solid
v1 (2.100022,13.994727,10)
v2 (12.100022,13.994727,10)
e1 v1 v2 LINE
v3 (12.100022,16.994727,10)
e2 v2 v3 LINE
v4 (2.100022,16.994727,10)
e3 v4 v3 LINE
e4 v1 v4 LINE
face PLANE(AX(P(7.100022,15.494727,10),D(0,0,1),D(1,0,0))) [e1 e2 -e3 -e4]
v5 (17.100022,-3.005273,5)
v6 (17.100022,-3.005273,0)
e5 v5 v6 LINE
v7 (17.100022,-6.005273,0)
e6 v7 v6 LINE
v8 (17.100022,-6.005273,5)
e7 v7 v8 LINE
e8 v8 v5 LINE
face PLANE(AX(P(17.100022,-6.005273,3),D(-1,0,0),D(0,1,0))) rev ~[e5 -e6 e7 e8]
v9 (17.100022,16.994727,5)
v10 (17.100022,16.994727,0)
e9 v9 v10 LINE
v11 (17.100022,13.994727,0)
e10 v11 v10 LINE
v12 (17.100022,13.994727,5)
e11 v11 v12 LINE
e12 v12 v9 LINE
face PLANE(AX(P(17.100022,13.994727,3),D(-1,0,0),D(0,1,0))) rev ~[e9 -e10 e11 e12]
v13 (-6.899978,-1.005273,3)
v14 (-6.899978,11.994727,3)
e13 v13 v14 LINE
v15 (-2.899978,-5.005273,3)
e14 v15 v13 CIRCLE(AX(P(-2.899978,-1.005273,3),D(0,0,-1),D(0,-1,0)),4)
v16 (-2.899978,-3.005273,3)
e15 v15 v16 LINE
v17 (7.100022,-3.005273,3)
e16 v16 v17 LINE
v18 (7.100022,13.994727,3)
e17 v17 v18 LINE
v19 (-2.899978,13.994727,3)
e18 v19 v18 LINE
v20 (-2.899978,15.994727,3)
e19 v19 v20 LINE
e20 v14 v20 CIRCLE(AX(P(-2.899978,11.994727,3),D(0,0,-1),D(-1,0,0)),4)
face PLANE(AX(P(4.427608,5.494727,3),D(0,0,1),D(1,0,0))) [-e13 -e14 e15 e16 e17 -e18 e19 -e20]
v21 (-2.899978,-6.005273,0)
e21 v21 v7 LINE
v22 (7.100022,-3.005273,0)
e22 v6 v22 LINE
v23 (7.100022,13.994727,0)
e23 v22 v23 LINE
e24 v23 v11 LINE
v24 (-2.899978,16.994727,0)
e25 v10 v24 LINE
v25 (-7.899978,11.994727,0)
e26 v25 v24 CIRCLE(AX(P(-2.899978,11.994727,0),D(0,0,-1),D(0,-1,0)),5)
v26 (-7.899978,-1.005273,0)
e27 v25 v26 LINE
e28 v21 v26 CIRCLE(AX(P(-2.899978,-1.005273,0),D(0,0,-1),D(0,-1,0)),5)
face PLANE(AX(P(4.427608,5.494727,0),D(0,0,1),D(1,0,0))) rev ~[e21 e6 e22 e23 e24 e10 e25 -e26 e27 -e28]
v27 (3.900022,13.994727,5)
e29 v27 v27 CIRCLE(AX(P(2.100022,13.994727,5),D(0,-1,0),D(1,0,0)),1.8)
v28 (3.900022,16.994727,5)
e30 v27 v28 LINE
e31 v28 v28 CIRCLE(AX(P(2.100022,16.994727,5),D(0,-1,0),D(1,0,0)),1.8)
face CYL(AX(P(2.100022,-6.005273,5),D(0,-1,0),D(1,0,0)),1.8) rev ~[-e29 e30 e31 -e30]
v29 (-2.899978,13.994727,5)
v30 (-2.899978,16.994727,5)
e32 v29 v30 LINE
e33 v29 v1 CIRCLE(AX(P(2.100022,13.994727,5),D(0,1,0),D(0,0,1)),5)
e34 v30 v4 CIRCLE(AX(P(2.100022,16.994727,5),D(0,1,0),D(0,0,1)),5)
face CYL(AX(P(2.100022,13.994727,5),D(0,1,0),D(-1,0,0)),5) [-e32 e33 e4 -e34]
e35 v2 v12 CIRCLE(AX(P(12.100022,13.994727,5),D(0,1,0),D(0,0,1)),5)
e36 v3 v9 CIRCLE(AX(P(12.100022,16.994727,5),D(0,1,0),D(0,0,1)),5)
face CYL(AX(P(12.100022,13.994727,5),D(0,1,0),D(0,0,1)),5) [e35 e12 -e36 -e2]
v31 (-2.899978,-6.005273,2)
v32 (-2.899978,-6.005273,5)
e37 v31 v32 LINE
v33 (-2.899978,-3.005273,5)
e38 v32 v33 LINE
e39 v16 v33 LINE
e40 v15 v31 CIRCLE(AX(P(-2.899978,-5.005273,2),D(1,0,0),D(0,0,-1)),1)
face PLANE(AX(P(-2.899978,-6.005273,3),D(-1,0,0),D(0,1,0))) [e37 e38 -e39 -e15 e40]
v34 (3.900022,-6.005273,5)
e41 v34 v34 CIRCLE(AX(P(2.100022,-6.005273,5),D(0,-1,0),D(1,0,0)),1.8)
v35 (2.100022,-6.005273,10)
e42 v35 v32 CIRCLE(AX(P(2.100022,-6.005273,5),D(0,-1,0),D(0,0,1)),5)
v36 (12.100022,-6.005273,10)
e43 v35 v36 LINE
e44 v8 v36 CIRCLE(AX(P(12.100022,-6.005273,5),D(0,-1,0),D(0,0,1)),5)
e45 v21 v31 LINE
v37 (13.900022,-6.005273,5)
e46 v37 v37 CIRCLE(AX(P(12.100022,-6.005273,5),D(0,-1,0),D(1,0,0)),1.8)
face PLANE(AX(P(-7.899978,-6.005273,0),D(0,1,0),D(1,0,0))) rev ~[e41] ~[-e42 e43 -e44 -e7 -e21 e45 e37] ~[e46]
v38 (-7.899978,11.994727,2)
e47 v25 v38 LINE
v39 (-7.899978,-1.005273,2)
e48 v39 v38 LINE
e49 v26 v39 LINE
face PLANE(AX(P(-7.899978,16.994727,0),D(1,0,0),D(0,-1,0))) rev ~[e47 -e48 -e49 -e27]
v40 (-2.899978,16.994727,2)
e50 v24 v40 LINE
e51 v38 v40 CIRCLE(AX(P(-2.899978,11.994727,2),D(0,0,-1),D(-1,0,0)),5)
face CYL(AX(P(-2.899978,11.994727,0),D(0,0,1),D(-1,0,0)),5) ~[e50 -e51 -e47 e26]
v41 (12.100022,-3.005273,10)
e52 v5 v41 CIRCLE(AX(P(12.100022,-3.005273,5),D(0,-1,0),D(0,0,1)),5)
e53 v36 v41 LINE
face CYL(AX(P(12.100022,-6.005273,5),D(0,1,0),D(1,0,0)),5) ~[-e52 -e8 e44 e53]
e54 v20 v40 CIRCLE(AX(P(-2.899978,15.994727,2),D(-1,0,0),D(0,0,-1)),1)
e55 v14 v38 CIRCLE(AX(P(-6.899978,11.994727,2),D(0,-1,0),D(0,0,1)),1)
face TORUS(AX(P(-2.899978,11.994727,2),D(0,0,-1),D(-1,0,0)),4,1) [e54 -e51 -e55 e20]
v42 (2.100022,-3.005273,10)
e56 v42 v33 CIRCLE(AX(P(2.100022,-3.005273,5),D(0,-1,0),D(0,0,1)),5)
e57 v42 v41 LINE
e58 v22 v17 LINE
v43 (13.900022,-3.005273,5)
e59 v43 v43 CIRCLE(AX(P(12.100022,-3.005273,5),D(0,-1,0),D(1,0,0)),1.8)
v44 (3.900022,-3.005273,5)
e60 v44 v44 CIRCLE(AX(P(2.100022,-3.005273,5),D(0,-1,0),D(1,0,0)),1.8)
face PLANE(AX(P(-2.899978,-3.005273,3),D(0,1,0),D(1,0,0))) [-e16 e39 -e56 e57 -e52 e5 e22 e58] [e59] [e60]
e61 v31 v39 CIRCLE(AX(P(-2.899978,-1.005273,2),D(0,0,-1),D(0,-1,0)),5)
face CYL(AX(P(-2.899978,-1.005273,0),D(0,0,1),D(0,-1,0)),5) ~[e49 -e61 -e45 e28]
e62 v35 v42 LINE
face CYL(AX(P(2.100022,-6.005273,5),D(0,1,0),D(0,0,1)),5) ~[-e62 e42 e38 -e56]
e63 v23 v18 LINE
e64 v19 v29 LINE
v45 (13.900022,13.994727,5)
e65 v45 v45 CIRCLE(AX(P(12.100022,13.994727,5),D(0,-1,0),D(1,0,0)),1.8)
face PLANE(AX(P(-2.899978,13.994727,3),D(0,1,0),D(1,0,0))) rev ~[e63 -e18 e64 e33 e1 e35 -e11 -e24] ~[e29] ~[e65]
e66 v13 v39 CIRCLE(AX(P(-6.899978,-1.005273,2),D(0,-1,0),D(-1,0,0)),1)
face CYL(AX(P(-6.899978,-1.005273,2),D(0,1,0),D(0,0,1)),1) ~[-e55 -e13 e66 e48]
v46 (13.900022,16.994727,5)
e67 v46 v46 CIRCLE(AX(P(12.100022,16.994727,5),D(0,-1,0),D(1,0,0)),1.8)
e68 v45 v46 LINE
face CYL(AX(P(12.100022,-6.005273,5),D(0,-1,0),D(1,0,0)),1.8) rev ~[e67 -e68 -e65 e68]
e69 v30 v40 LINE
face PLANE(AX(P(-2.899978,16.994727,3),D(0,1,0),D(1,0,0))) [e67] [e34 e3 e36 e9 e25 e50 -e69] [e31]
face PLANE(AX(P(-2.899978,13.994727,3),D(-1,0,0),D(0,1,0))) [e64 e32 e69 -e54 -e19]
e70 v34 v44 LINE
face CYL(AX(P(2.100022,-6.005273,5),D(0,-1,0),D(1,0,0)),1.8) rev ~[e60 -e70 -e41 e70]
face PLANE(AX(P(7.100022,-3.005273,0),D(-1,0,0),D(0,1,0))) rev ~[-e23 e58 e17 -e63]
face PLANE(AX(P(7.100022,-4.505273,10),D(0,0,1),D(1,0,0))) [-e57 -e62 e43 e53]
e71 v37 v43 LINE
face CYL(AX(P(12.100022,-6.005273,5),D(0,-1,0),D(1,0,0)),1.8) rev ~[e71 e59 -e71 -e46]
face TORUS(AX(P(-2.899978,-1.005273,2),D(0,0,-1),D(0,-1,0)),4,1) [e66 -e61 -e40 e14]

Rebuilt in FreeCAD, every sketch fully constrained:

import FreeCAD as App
import Part
import Sketcher


def edges_at(feature, points):
    """Names of the edges that pass closest to the given points."""
    edges = feature.Shape.Edges
    near = lambda p: min(range(len(edges)), key=lambda i: edges[i].distToShape(Part.Vertex(*p))[0])
    return sorted({f"Edge{near(p) + 1}" for p in points})

doc = App.newDocument("Part")
body = doc.addObject("PartDesign::Body", "Body")

# Sketch on XY plane
sketch1 = body.newObject("Sketcher::SketchObject", "Sketch")
sketch1.AttachmentSupport = (doc.getObject("XY_Plane"), [""])
sketch1.MapMode = "FlatFace"
sketch1.addGeometry([
    Part.LineSegment(App.Vector(-7.9, 17, 0), App.Vector(-7.9, -6, 0)),  # 0
    Part.LineSegment(App.Vector(-7.9, -6, 0), App.Vector(17.1, -6, 0)),  # 1
    Part.LineSegment(App.Vector(17.1, -6, 0), App.Vector(17.1, -3, 0)),  # 2
    Part.LineSegment(App.Vector(17.1, -3, 0), App.Vector(7.1, -3, 0)),  # 3
    Part.LineSegment(App.Vector(7.1, -3, 0), App.Vector(7.1, 14, 0)),  # 4
    Part.LineSegment(App.Vector(7.1, 14, 0), App.Vector(17.1, 14, 0)),  # 5
    Part.LineSegment(App.Vector(17.1, 14, 0), App.Vector(17.1, 17, 0)),  # 6
    Part.LineSegment(App.Vector(17.1, 17, 0), App.Vector(-7.9, 17, 0)),  # 7
], False)
sketch1.addConstraint([
    Sketcher.Constraint("Coincident", 0, 2, 1, 1),
    Sketcher.Constraint("Coincident", 1, 2, 2, 1),
    Sketcher.Constraint("Coincident", 2, 2, 3, 1),
    Sketcher.Constraint("Coincident", 3, 2, 4, 1),
    Sketcher.Constraint("Coincident", 4, 2, 5, 1),
    Sketcher.Constraint("Coincident", 5, 2, 6, 1),
    Sketcher.Constraint("Coincident", 6, 2, 7, 1),
    Sketcher.Constraint("Coincident", 7, 2, 0, 1),
    Sketcher.Constraint("Vertical", 0),
    Sketcher.Constraint("Horizontal", 1),
    Sketcher.Constraint("Vertical", 2),
    Sketcher.Constraint("Horizontal", 3),
    Sketcher.Constraint("Vertical", 4),
    Sketcher.Constraint("Horizontal", 5),
    Sketcher.Constraint("Vertical", 6),
    Sketcher.Constraint("Horizontal", 7),
    Sketcher.Constraint("Vertical", 2, 2, 5, 2),
    Sketcher.Constraint("Equal", 2, 6),
    Sketcher.Constraint("DistanceX", 1, 1, 1, 2, 25.0),
    Sketcher.Constraint("DistanceX", 3, 2, 3, 1, 10.0),
    Sketcher.Constraint("DistanceY", 0, 2, 0, 1, 23.0),
    Sketcher.Constraint("DistanceY", 2, 1, 2, 2, 3.0),
    Sketcher.Constraint("DistanceX", 0, 2, -1, 1, 7.899978),
    Sketcher.Constraint("DistanceY", 0, 2, -1, 1, 6.005273),
])
pad1 = body.newObject("PartDesign::Pad", "Pad")
pad1.Profile = sketch1
pad1.Length = 3

# Sketch on XY plane
sketch2 = body.newObject("Sketcher::SketchObject", "Sketch001")
sketch2.AttachmentSupport = (doc.getObject("XY_Plane"), [""])
sketch2.MapMode = "FlatFace"
sketch2.AttachmentOffset = App.Placement(App.Vector(0, 0, 3), App.Rotation())
sketch2.addGeometry([
    Part.LineSegment(App.Vector(-2.9, 17, 0), App.Vector(-2.9, 14, 0)),  # 0
    Part.LineSegment(App.Vector(-2.9, 14, 0), App.Vector(17.1, 14, 0)),  # 1
    Part.LineSegment(App.Vector(17.1, 14, 0), App.Vector(17.1, 17, 0)),  # 2
    Part.LineSegment(App.Vector(17.1, 17, 0), App.Vector(-2.9, 17, 0)),  # 3
    Part.LineSegment(App.Vector(-2.9, -3, 0), App.Vector(-2.9, -6, 0)),  # 4
    Part.LineSegment(App.Vector(-2.9, -6, 0), App.Vector(17.1, -6, 0)),  # 5
    Part.LineSegment(App.Vector(17.1, -6, 0), App.Vector(17.1, -3, 0)),  # 6
    Part.LineSegment(App.Vector(17.1, -3, 0), App.Vector(-2.9, -3, 0)),  # 7
], False)
sketch2.addConstraint([
    Sketcher.Constraint("Coincident", 0, 2, 1, 1),
    Sketcher.Constraint("Coincident", 1, 2, 2, 1),
    Sketcher.Constraint("Coincident", 2, 2, 3, 1),
    Sketcher.Constraint("Coincident", 3, 2, 0, 1),
    Sketcher.Constraint("Coincident", 4, 2, 5, 1),
    Sketcher.Constraint("Coincident", 5, 2, 6, 1),
    Sketcher.Constraint("Coincident", 6, 2, 7, 1),
    Sketcher.Constraint("Coincident", 7, 2, 4, 1),
    Sketcher.Constraint("Vertical", 0),
    Sketcher.Constraint("Horizontal", 1),
    Sketcher.Constraint("Vertical", 2),
    Sketcher.Constraint("Horizontal", 3),
    Sketcher.Constraint("Vertical", 4),
    Sketcher.Constraint("Horizontal", 5),
    Sketcher.Constraint("Vertical", 6),
    Sketcher.Constraint("Horizontal", 7),
    Sketcher.Constraint("Vertical", 3, 2, 4, 2),
    Sketcher.Constraint("Vertical", 2, 2, 5, 2),
    Sketcher.Constraint("Equal", 2, 4),
    Sketcher.Constraint("DistanceX", 1, 1, 1, 2, 20.0),
    Sketcher.Constraint("DistanceY", 0, 2, 0, 1, 3.0),
    Sketcher.Constraint("DistanceY", 4, 2, 0, 2, 20.0),
    Sketcher.Constraint("DistanceX", 0, 2, -1, 1, 2.899978),
    Sketcher.Constraint("DistanceY", -1, 1, 0, 2, 13.994727),
])
pad2 = body.newObject("PartDesign::Pad", "Pad001")
pad2.Profile = sketch2
pad2.Length = 7
doc.recompute()

fillet = body.newObject("PartDesign::Fillet", "Fillet")
fillet.Base = (pad2, edges_at(pad2, [
    (-7.9, 16.995, 1.5),
    (-7.9, -6.005, 1.5),
    (-2.9, -4.505, 10),
    (-2.9, 15.495, 10),
]))
fillet.Radius = 5
doc.recompute()

fillet2 = body.newObject("PartDesign::Fillet", "Fillet001")
fillet2.Base = (fillet, edges_at(fillet, [(17.1, 15.495, 10), (17.1, -4.505, 10)]))
fillet2.Radius = 5
doc.recompute()

fillet3 = body.newObject("PartDesign::Fillet", "Fillet002")
fillet3.Base = (fillet2, edges_at(fillet2, [(-6.436, 15.53, 3), (-7.9, 5.495, 3), (-6.436, -4.541, 3)]))
fillet3.Radius = 1

# Sketch on XZ plane
sketch3 = body.newObject("Sketcher::SketchObject", "Sketch002")
sketch3.AttachmentSupport = (doc.getObject("XZ_Plane"), [""])
sketch3.MapMode = "FlatFace"
sketch3.AttachmentOffset = App.Placement(App.Vector(0, 0, 6.005273), App.Rotation())
sketch3.addGeometry([
    Part.Circle(App.Vector(12.1, 5, 0), App.Vector(0, 0, 1), 1.8),
    Part.Circle(App.Vector(2.1, 5, 0), App.Vector(0, 0, 1), 1.8),
], False)
sketch3.addConstraint([
    Sketcher.Constraint("Equal", 0, 1),
    Sketcher.Constraint("Horizontal", 0, 3, 1, 3),
    Sketcher.Constraint("Diameter", 0, 3.6),
    Sketcher.Constraint("DistanceY", -1, 1, 0, 3, 5.0),
    Sketcher.Constraint("DistanceX", 1, 3, 0, 3, 10.0),
    Sketcher.Constraint("DistanceX", -1, 1, 0, 3, 12.100022),
])
pocket1 = body.newObject("PartDesign::Pocket", "Pocket")
pocket1.Profile = sketch3
pocket1.Length = 24

doc.recompute()
